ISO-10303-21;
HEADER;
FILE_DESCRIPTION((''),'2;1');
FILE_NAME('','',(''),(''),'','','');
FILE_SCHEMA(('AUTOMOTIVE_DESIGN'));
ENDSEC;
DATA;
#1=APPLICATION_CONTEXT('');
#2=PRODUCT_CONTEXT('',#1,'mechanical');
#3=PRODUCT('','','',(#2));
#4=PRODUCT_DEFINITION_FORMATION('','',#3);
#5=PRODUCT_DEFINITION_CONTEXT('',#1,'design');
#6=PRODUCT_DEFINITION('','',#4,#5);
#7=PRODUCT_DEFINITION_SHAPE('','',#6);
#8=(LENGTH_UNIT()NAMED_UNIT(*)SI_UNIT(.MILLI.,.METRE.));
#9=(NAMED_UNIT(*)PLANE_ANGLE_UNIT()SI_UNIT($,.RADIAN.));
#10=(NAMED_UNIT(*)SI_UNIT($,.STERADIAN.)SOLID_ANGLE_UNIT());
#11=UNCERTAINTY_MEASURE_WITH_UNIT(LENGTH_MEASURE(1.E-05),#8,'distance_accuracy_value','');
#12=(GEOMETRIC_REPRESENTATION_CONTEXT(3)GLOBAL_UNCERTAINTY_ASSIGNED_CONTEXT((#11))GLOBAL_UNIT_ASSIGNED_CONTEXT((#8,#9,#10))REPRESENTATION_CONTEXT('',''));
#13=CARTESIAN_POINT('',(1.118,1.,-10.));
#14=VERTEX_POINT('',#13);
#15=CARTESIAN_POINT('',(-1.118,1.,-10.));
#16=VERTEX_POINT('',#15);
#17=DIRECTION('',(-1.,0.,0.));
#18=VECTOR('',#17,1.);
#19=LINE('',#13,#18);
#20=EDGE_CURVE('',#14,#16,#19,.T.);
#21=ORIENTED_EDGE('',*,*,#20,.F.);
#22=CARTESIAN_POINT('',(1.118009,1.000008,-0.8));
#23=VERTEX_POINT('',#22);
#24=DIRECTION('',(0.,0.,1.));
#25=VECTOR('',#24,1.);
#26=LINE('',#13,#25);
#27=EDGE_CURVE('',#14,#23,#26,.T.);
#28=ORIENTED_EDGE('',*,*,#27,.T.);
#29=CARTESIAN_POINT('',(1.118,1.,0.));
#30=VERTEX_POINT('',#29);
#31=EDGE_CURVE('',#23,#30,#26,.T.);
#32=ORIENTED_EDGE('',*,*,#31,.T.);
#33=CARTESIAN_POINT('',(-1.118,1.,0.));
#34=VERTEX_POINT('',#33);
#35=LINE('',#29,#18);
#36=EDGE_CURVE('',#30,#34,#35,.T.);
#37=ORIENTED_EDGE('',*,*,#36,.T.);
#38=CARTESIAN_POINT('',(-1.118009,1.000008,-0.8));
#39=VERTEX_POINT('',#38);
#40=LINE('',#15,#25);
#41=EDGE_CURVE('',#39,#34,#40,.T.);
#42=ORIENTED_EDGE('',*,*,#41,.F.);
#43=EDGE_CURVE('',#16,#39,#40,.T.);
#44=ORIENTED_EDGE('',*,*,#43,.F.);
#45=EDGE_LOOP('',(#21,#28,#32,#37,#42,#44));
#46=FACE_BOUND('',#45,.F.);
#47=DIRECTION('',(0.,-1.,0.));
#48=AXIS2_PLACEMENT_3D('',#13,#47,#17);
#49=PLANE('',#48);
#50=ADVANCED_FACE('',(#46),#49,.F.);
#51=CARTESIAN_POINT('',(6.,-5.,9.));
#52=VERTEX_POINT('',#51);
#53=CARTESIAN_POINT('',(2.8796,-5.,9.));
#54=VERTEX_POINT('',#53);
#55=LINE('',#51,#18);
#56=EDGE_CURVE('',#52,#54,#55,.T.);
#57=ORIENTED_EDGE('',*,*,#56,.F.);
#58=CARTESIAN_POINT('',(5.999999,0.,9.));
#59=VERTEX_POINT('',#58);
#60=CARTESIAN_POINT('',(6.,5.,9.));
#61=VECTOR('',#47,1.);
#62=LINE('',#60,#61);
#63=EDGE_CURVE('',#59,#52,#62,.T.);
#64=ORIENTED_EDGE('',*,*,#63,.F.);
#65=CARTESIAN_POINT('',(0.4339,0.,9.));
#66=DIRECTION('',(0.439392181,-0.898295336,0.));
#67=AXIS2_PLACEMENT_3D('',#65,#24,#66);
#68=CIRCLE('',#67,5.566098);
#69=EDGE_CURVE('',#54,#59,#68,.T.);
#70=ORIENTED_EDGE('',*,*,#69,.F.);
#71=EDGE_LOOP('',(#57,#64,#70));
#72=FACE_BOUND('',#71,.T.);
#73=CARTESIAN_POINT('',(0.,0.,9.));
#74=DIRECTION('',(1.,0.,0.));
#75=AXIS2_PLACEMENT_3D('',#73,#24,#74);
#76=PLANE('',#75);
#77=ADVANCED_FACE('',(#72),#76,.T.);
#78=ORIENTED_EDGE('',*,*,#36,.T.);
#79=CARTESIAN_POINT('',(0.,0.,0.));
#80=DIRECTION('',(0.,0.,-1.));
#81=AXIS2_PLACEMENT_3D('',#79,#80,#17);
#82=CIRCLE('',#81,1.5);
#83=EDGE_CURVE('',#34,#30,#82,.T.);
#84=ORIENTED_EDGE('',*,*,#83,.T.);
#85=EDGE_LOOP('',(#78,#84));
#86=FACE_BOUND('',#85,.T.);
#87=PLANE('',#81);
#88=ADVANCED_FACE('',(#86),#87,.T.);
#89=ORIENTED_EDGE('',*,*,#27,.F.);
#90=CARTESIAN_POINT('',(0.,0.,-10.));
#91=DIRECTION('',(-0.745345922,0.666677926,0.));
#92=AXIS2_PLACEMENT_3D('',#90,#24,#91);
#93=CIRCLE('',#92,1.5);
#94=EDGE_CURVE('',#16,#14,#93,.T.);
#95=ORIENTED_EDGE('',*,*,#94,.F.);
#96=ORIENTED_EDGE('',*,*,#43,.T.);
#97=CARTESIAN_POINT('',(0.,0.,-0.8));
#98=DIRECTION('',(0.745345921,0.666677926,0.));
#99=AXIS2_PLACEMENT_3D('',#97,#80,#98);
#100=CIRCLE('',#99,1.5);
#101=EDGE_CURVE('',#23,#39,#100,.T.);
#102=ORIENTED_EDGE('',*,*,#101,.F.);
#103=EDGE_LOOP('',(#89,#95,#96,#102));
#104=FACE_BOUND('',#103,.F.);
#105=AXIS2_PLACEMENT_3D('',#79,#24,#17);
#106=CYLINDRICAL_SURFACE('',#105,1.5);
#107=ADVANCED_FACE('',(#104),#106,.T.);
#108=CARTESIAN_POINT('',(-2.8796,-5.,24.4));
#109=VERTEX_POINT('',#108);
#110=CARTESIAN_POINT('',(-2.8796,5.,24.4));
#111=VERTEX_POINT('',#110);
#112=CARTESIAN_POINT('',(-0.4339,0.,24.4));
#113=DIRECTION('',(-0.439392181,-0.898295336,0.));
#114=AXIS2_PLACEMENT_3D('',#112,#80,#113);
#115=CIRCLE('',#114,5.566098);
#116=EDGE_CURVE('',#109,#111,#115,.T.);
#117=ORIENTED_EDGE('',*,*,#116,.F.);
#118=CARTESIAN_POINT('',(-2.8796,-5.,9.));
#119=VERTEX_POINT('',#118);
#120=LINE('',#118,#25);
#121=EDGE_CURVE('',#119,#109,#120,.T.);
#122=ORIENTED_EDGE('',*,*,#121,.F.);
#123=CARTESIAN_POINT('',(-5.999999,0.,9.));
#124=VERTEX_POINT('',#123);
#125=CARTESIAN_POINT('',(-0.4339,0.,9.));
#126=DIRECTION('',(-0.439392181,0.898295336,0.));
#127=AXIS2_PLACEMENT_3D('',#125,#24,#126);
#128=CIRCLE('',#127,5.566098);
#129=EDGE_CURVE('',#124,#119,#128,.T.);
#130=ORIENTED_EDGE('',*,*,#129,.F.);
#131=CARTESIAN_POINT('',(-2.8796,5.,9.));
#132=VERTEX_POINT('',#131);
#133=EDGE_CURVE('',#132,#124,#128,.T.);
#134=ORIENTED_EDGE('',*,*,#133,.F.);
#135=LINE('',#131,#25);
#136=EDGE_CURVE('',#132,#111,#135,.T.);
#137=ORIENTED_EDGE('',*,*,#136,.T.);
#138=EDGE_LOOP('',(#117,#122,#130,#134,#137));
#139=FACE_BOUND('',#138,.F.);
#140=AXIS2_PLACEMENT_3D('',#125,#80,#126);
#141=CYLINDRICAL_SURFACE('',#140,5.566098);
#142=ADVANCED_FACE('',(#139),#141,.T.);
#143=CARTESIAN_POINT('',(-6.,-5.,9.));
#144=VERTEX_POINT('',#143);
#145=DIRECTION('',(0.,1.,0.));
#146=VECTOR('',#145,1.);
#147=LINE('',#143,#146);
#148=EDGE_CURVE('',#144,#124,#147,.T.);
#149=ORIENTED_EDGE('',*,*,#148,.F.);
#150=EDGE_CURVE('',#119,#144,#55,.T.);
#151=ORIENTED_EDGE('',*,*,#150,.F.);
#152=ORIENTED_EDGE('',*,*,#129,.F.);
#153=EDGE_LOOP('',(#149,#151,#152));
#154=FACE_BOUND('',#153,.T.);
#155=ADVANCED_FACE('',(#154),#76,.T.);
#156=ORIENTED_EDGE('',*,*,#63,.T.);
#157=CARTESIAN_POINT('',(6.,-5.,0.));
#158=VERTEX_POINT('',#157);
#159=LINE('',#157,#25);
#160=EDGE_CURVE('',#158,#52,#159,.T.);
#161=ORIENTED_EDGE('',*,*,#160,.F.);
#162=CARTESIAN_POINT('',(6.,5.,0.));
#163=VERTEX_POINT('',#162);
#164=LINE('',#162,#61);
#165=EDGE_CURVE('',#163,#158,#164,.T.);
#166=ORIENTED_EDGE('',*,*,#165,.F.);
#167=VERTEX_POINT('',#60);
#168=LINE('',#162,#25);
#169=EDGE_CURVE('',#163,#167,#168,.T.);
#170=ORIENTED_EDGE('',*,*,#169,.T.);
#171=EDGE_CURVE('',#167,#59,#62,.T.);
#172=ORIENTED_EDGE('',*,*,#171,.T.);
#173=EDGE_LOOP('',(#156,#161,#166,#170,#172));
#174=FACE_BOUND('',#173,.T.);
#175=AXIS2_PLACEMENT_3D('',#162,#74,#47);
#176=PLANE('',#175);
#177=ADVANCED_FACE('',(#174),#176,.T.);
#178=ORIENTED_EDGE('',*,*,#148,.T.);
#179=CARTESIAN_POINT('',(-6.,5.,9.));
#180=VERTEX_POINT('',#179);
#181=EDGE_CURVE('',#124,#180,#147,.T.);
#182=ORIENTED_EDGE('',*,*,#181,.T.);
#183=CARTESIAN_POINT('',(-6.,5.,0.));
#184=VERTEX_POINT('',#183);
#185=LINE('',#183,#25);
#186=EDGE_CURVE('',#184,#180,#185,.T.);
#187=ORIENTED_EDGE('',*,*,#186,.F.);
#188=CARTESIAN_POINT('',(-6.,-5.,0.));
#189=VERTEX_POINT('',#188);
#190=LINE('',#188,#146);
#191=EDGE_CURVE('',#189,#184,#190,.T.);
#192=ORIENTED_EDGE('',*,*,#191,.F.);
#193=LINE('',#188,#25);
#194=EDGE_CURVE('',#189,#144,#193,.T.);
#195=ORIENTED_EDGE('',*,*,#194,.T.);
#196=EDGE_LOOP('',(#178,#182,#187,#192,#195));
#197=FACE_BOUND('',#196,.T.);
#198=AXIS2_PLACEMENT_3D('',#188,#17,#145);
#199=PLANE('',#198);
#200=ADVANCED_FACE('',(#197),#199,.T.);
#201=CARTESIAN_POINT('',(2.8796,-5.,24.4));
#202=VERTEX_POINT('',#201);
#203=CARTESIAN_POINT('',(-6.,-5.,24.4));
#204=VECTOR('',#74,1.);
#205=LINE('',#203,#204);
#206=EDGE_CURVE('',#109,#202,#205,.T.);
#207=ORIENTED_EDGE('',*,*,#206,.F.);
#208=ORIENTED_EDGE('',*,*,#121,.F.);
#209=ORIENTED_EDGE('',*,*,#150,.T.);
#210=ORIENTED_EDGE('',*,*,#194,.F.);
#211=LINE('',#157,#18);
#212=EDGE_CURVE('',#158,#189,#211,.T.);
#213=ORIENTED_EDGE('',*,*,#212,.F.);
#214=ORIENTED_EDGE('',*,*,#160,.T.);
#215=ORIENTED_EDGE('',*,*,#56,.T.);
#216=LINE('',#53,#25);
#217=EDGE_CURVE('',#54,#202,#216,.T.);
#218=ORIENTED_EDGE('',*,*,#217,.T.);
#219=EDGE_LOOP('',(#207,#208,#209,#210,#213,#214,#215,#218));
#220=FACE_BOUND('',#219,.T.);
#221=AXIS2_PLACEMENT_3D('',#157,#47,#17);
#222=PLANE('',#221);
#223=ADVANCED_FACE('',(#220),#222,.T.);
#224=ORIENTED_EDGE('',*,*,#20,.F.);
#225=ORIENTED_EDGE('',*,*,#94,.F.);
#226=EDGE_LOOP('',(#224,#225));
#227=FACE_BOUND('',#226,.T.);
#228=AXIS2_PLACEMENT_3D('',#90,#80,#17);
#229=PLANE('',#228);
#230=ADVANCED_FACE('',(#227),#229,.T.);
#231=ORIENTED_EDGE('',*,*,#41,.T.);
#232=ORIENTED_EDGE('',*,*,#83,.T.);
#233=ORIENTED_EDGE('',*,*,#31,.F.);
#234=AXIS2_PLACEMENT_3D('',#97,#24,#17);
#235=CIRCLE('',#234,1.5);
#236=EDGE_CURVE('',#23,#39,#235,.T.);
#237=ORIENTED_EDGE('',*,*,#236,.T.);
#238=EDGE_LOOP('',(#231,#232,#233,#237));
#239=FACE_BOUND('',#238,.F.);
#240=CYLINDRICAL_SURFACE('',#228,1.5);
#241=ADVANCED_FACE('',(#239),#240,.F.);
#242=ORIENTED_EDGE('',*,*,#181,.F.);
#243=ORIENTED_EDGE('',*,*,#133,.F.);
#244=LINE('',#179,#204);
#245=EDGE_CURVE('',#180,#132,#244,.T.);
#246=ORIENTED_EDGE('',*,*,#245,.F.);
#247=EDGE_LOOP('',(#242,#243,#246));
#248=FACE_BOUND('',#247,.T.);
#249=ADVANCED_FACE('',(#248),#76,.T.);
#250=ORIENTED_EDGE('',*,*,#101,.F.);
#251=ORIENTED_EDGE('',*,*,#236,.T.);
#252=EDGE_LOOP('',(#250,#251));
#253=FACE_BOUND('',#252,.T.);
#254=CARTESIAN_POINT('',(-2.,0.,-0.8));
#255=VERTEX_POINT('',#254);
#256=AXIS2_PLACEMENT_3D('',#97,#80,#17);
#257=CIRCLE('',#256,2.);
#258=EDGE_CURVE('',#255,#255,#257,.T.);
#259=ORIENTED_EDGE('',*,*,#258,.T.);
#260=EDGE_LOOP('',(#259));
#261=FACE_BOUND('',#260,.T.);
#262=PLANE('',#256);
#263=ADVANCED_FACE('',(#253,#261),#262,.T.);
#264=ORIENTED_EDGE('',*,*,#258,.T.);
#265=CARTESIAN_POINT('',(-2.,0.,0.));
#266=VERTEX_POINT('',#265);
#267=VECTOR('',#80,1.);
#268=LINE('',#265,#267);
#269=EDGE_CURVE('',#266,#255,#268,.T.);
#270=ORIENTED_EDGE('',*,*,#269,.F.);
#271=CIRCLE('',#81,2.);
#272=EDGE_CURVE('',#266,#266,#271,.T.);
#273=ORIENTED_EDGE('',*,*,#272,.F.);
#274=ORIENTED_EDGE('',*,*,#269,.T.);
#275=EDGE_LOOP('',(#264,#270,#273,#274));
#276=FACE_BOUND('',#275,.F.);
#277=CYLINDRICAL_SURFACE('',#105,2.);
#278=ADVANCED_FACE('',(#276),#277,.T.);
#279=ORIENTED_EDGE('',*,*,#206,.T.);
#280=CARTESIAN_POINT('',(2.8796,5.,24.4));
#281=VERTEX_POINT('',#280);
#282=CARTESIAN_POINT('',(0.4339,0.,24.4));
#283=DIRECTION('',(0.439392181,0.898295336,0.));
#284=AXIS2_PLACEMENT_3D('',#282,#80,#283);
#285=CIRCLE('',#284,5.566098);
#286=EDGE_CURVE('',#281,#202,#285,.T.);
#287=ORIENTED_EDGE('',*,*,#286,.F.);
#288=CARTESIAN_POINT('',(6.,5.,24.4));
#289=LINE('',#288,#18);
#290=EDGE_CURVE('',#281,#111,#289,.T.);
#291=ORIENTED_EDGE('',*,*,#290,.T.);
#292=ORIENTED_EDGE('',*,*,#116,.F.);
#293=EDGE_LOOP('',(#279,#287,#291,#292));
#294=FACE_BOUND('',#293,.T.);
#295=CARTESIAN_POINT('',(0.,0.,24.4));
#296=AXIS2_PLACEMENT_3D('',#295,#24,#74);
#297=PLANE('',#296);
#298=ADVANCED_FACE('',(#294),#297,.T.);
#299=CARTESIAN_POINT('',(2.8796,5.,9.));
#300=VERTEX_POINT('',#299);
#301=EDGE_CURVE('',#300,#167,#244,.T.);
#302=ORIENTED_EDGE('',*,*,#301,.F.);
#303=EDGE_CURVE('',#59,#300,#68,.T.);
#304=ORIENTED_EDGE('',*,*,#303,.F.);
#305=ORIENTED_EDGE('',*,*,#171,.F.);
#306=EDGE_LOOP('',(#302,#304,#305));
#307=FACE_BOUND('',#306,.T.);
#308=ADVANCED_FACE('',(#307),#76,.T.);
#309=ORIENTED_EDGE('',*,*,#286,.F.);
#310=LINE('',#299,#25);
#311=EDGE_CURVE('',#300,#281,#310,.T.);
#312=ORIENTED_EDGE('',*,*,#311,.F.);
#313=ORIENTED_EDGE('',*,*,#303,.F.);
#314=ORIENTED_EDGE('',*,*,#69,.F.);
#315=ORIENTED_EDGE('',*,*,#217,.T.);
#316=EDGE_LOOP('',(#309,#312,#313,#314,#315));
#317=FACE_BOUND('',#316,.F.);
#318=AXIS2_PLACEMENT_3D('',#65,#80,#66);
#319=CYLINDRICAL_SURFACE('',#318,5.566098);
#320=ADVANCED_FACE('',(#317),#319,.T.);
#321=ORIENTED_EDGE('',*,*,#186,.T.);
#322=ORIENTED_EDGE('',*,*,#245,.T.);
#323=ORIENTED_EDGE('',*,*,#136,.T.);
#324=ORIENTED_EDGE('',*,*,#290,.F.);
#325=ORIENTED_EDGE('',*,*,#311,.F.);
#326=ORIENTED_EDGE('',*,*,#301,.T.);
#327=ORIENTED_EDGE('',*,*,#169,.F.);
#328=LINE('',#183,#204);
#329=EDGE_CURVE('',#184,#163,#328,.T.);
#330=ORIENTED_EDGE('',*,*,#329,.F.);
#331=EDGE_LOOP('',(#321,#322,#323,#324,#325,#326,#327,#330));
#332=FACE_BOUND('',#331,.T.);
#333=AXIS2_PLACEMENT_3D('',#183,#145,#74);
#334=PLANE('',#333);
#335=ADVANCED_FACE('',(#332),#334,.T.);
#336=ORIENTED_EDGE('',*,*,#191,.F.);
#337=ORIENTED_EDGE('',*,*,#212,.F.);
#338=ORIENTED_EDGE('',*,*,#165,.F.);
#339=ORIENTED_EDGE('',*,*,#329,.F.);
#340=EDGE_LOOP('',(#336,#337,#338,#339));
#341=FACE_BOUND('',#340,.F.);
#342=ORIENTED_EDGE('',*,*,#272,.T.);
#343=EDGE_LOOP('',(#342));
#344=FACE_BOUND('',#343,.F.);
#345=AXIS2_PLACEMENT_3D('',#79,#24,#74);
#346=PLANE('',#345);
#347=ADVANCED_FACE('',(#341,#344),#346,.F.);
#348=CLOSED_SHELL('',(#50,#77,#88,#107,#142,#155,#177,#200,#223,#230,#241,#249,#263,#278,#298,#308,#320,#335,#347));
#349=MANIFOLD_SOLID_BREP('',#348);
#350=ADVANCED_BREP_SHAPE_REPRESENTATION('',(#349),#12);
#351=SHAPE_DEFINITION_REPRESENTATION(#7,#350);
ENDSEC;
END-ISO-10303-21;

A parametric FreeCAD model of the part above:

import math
import FreeCAD as App
import Part
import Sketcher

V = App.Vector
Q = App.Units.Quantity


def add_polygon(sketch, points):
    """Adds a closed chain of lines whose ends are joined by coincident constraints."""
    first, n = sketch.GeometryCount, len(points)
    for a, b in zip(points, points[1:] + points[:1]):
        sketch.addGeometry(Part.LineSegment(App.Vector(*a, 0), App.Vector(*b, 0)), False)
    for i in range(n):
        sketch.addConstraint(Sketcher.Constraint("Coincident", first + i, 2, first + (i + 1) % n, 1))

doc = App.newDocument("Part")
body = doc.addObject("PartDesign::Body", "Body")

sketch1 = body.newObject("Sketcher::SketchObject", "Sketch")
sketch1.AttachmentSupport = (doc.getObject("XY_Plane"), [""])
sketch1.MapMode = "FlatFace"
add_polygon(sketch1, [(6, 5), (-6, 5), (-6, -5), (6, -5)])
sketch1.addConstraint([
    Sketcher.Constraint("Horizontal", 0),
    Sketcher.Constraint("Vertical", 1),
    Sketcher.Constraint("Horizontal", 2),
    Sketcher.Constraint("Vertical", 3),
    Sketcher.Constraint("Symmetric", 0, 2, 2, 2, -1, 1),
    Sketcher.Constraint("DistanceX", 0, 2, 0, 1, Q("12 mm")),
    Sketcher.Constraint("DistanceY", 1, 2, 1, 1, Q("10 mm")),
])
pad1 = body.newObject("PartDesign::Pad", "Pad")
pad1.Profile = sketch1
pad1.Length = 9

sketch2 = body.newObject("Sketcher::SketchObject", "Sketch001")
sketch2.AttachmentSupport = (doc.getObject("XY_Plane"), [""])
sketch2.MapMode = "FlatFace"
sketch2.AttachmentOffset = App.Placement(V(0, 0, 9), App.Rotation())
sketch2.addGeometry([
    Part.ArcOfCircle(Part.Circle(V(-0.4339, 0, 0), V(0, 0, 1), 5.566098), math.radians(116.065106), math.radians(243.934894)),
    Part.LineSegment(V(-2.8796, -5, 0), V(2.8796, -5, 0)),
    Part.ArcOfCircle(Part.Circle(V(0.4339, 0, 0), V(0, 0, 1), 5.566098), math.radians(-63.934894), math.radians(63.934894)),
    Part.LineSegment(V(2.8796, 5, 0), V(-2.8796, 5, 0)),
], False)
sketch2.addConstraint([
    Sketcher.Constraint("Coincident", 0, 2, 1, 1),
    Sketcher.Constraint("Coincident", 1, 2, 2, 1),
    Sketcher.Constraint("Coincident", 2, 2, 3, 1),
    Sketcher.Constraint("Coincident", 3, 2, 0, 1),
    Sketcher.Constraint("Horizontal", 1),
    Sketcher.Constraint("Horizontal", 3),
    Sketcher.Constraint("Equal", 0, 2),
    Sketcher.Constraint("Symmetric", 0, 3, 2, 3, -1, 1),
    Sketcher.Constraint("Symmetric", 1, 2, 2, 2, -1),
    Sketcher.Constraint("DistanceY", 0, 2, -1, 1, Q("5 mm")),
    Sketcher.Constraint("Radius", 0, Q("5.566 mm")),
    Sketcher.Constraint("DistanceX", 1, 1, 1, 2, Q("5.7592 mm")),
])
pad2 = body.newObject("PartDesign::Pad", "Pad001")
pad2.Profile = sketch2
pad2.Length = 15.4

sketch3 = body.newObject("Sketcher::SketchObject", "Sketch002")
sketch3.AttachmentSupport = (doc.getObject("XY_Plane"), [""])
sketch3.MapMode = "FlatFace"
sketch3.addGeometry(Part.Circle(V(0, 0, 0), V(0, 0, 1), 2), False)
sketch3.addConstraint([
    Sketcher.Constraint("Coincident", 0, 3, -1, 1),
    Sketcher.Constraint("Diameter", 0, Q("4 mm")),
])
pad3 = body.newObject("PartDesign::Pad", "Pad002")
pad3.Profile = sketch3
pad3.Length = 0.8
pad3.Reversed = True

sketch4 = body.newObject("Sketcher::SketchObject", "Sketch003")
sketch4.AttachmentSupport = (doc.getObject("XY_Plane"), [""])
sketch4.MapMode = "FlatFace"
sketch4.addGeometry(Part.Circle(V(0, 0, 0), V(0, 0, 1), 1.5), False)
sketch4.addConstraint([
    Sketcher.Constraint("Coincident", 0, 3, -1, 1),
    Sketcher.Constraint("Diameter", 0, Q("3 mm")),
])
pad4 = body.newObject("PartDesign::Pad", "Pad003")
pad4.Profile = sketch4
pad4.Length = 10
pad4.Reversed = True

sketch5 = body.newObject("Sketcher::SketchObject", "Sketch004")
sketch5.AttachmentSupport = (doc.getObject("XY_Plane"), [""])
sketch5.MapMode = "FlatFace"
sketch5.AttachmentOffset = App.Placement(V(0, 0, -10), App.Rotation())
sketch5.addGeometry([
    Part.LineSegment(V(1.118, 1, 0), V(-1.118, 1, 0)),
    Part.ArcOfCircle(Part.Circle(V(0, 0, 0), V(0, 0, 1), 1.5), math.radians(41.81118), math.radians(138.18882)),
], False)
sketch5.addConstraint([
    Sketcher.Constraint("Coincident", 0, 1, 1, 1),
    Sketcher.Constraint("Coincident", 1, 2, 0, 2),
    Sketcher.Constraint("Horizontal", 0),
    Sketcher.Constraint("Coincident", 1, 3, -1, 1),
    Sketcher.Constraint("DistanceY", -1, 1, 0, 1, Q("1 mm")),
    Sketcher.Constraint("Radius", 1, Q("1.5 mm")),
])
pocket1 = body.newObject("PartDesign::Pocket", "Pocket")
pocket1.Profile = sketch5
pocket1.Length = 10
pocket1.Reversed = True

doc.recompute()
